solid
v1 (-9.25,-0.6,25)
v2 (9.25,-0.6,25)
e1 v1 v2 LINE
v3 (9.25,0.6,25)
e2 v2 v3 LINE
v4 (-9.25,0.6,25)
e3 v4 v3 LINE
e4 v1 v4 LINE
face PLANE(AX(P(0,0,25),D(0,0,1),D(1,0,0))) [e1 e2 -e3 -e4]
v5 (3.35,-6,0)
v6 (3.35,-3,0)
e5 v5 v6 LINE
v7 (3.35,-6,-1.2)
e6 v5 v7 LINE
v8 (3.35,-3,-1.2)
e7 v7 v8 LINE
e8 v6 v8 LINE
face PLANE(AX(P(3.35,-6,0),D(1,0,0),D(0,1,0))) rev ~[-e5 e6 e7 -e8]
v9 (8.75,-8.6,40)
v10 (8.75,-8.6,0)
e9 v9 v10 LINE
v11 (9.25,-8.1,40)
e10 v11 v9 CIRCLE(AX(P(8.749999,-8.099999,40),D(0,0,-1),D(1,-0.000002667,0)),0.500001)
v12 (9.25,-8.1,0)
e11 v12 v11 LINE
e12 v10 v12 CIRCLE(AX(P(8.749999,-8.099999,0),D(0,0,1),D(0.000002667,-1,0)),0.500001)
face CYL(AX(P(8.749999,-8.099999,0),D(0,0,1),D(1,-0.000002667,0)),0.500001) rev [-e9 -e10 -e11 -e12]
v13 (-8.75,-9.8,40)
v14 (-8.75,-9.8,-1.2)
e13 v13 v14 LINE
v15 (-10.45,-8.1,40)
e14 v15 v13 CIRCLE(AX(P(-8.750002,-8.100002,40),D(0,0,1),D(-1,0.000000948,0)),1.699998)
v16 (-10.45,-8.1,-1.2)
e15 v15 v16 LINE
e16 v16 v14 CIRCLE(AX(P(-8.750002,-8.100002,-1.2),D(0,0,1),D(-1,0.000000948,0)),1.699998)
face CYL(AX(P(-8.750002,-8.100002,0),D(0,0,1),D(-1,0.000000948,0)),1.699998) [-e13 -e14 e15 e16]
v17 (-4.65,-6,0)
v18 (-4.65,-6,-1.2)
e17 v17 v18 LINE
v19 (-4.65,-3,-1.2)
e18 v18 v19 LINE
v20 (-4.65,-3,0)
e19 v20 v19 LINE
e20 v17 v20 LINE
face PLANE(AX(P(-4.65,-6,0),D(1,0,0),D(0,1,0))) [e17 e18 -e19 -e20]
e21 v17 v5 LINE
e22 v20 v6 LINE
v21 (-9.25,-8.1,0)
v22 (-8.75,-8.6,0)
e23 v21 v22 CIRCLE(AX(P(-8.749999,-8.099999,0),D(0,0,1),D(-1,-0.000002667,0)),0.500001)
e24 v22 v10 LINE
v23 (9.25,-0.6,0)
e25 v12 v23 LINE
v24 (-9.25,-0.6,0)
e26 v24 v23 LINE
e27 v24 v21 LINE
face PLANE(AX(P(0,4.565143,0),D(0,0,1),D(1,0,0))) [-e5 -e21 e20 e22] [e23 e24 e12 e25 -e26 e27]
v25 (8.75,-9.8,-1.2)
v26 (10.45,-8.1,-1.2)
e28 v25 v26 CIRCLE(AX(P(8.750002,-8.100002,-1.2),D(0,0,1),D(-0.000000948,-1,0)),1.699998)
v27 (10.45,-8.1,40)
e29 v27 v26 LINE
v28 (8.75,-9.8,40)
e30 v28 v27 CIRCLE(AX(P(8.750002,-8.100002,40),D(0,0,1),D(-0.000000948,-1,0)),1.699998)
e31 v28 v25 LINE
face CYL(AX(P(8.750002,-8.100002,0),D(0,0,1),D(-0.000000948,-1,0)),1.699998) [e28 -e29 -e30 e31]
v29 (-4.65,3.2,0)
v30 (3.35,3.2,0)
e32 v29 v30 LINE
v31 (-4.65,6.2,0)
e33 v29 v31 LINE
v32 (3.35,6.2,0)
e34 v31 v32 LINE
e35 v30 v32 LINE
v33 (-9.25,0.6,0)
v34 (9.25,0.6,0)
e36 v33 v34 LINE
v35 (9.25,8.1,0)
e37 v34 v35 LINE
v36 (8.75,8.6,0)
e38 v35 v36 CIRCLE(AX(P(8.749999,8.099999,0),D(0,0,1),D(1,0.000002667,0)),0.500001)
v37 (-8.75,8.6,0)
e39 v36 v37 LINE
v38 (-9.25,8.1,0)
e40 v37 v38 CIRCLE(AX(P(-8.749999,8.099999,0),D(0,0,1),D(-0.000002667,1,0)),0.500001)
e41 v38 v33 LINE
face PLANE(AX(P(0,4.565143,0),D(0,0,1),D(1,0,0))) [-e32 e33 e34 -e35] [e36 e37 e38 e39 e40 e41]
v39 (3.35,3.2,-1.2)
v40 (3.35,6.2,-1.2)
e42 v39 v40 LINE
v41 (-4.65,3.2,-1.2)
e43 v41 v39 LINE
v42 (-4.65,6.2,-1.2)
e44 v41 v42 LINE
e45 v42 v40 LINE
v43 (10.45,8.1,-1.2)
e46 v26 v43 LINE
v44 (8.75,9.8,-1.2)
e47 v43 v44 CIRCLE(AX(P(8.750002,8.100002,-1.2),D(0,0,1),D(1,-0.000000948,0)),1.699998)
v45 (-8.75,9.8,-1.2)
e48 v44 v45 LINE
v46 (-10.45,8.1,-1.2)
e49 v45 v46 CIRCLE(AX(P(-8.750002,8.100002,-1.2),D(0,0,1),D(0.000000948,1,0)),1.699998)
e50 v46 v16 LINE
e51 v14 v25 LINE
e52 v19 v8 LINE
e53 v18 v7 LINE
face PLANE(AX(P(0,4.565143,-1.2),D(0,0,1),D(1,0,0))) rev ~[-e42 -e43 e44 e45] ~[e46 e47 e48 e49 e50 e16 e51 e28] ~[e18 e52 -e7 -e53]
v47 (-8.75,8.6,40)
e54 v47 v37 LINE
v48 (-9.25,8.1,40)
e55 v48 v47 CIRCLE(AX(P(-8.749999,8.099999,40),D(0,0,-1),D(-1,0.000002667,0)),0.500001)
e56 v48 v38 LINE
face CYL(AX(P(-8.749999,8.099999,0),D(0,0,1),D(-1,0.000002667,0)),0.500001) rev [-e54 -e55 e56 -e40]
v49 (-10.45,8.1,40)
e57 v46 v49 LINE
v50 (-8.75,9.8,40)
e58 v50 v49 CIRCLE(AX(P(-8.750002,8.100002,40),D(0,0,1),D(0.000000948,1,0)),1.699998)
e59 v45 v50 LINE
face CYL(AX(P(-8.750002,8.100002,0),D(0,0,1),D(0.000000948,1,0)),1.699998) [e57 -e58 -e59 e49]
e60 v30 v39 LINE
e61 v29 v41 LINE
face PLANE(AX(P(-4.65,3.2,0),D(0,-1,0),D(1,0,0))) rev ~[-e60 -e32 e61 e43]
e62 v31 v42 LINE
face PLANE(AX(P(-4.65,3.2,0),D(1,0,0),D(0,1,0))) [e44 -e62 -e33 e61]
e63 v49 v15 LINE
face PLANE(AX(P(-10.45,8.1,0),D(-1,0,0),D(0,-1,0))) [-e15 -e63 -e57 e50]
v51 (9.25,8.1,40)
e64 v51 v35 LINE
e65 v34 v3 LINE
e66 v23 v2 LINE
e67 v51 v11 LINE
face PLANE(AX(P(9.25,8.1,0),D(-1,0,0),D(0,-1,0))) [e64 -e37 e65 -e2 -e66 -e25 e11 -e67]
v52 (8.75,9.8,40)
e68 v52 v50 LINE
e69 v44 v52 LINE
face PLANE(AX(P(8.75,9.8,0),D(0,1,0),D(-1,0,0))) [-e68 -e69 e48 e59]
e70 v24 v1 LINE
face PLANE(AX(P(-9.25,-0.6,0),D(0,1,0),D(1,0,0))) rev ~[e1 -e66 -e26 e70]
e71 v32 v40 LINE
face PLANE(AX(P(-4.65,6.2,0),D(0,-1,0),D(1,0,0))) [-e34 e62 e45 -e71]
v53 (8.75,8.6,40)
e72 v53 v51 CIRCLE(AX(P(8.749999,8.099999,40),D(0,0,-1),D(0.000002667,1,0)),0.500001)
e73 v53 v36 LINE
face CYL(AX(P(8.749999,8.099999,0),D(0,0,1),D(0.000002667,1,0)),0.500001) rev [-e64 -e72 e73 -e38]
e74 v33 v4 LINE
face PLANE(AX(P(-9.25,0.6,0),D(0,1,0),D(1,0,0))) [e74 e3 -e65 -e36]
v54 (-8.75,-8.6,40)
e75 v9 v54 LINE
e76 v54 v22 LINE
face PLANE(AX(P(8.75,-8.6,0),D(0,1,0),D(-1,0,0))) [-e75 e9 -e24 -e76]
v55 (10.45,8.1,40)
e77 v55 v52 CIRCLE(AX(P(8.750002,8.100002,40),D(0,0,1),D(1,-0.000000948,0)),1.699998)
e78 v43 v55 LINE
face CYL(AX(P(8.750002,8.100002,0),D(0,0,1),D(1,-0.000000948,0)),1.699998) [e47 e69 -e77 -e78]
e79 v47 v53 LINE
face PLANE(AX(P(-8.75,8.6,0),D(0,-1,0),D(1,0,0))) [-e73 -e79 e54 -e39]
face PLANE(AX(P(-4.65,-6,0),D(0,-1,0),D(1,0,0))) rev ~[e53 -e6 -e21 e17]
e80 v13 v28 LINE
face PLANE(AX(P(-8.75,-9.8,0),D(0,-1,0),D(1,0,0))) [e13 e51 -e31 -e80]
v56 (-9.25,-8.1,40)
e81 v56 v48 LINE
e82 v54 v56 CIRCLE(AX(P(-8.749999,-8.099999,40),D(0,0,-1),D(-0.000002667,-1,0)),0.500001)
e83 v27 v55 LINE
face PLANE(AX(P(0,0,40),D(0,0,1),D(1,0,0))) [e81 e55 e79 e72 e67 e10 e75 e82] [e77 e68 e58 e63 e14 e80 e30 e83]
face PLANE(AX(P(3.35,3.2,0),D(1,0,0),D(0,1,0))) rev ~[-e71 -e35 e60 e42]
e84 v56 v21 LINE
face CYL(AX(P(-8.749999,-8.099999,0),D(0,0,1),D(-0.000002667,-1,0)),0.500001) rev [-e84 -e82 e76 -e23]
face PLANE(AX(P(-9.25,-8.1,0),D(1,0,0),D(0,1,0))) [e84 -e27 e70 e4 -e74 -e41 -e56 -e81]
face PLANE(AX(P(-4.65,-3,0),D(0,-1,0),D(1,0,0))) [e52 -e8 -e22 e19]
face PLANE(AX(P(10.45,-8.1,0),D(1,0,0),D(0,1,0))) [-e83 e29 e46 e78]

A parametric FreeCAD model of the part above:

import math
import FreeCAD as App
import Part
import Sketcher
from FreeCAD import Vector
Q = App.Units.Quantity

doc = App.newDocument("Part")
body = doc.addObject("PartDesign::Body", "Body")

# Sketch on XY plane
sketch1 = body.newObject("Sketcher::SketchObject", "Sketch")
sketch1.AttachmentSupport = (doc.getObject("XY_Plane"), [""])
sketch1.MapMode = "FlatFace"
sketch1.addGeometry(Part.LineSegment(Vector(10.4, -8.1, 0), Vector(10.4, 8.1, 0)), False)
sketch1.addGeometry(Part.ArcOfCircle(Part.Circle(Vector(8.8, 8.1, 0), Vector(0, 0, 1), 1.7), math.radians(0), math.radians(90)), False)
sketch1.addGeometry(Part.LineSegment(Vector(8.8, 9.8, 0), Vector(-8.8, 9.8, 0)), False)
sketch1.addGeometry(Part.ArcOfCircle(Part.Circle(Vector(-8.8, 8.1, 0), Vector(0, 0, 1), 1.7), math.radians(90), math.radians(180)), False)
sketch1.addGeometry(Part.LineSegment(Vector(-10.4, 8.1, 0), Vector(-10.4, -8.1, 0)), False)
sketch1.addGeometry(Part.ArcOfCircle(Part.Circle(Vector(-8.8, -8.1, 0), Vector(0, 0, 1), 1.7), math.radians(180), math.radians(270)), False)
sketch1.addGeometry(Part.LineSegment(Vector(-8.8, -9.8, 0), Vector(8.8, -9.8, 0)), False)
sketch1.addGeometry(Part.ArcOfCircle(Part.Circle(Vector(8.8, -8.1, 0), Vector(0, 0, 1), 1.7), math.radians(-90), math.radians(0)), False)
sketch1.addGeometry(Part.LineSegment(Vector(9.2, 8.1, 0), Vector(9.2, -8.1, 0)), False)
sketch1.addGeometry(Part.ArcOfCircle(Part.Circle(Vector(8.7, -8.1, 0), Vector(0, 0, 1), 0.5), math.radians(-90), math.radians(0)), False)
sketch1.addGeometry(Part.LineSegment(Vector(8.8, -8.6, 0), Vector(-8.8, -8.6, 0)), False)
sketch1.addGeometry(Part.ArcOfCircle(Part.Circle(Vector(-8.7, -8.1, 0), Vector(0, 0, 1), 0.5), math.radians(-180), math.radians(-90)), False)
sketch1.addGeometry(Part.LineSegment(Vector(-9.2, -8.1, 0), Vector(-9.2, 8.1, 0)), False)
sketch1.addGeometry(Part.ArcOfCircle(Part.Circle(Vector(-8.7, 8.1, 0), Vector(0, 0, 1), 0.5), math.radians(90), math.radians(180)), False)
sketch1.addGeometry(Part.LineSegment(Vector(-8.8, 8.6, 0), Vector(8.8, 8.6, 0)), False)
sketch1.addGeometry(Part.ArcOfCircle(Part.Circle(Vector(8.7, 8.1, 0), Vector(0, 0, 1), 0.5), math.radians(0), math.radians(90)), False)
sketch1.addConstraint(Sketcher.Constraint("Tangent", 0, 2, 1, 1))
sketch1.addConstraint(Sketcher.Constraint("Tangent", 1, 2, 2, 1))
sketch1.addConstraint(Sketcher.Constraint("Tangent", 2, 2, 3, 1))
sketch1.addConstraint(Sketcher.Constraint("Tangent", 3, 2, 4, 1))
sketch1.addConstraint(Sketcher.Constraint("Tangent", 4, 2, 5, 1))
sketch1.addConstraint(Sketcher.Constraint("Tangent", 5, 2, 6, 1))
sketch1.addConstraint(Sketcher.Constraint("Tangent", 6, 2, 7, 1))
sketch1.addConstraint(Sketcher.Constraint("Tangent", 7, 2, 0, 1))
sketch1.addConstraint(Sketcher.Constraint("Coincident", 8, 2, 9, 2))
sketch1.addConstraint(Sketcher.Constraint("Coincident", 9, 1, 10, 1))
sketch1.addConstraint(Sketcher.Constraint("Coincident", 10, 2, 11, 2))
sketch1.addConstraint(Sketcher.Constraint("Coincident", 11, 1, 12, 1))
sketch1.addConstraint(Sketcher.Constraint("Coincident", 12, 2, 13, 2))
sketch1.addConstraint(Sketcher.Constraint("Coincident", 13, 1, 14, 1))
sketch1.addConstraint(Sketcher.Constraint("Coincident", 14, 2, 15, 2))
sketch1.addConstraint(Sketcher.Constraint("Coincident", 15, 1, 8, 1))
sketch1.addConstraint(Sketcher.Constraint("Vertical", 0))
sketch1.addConstraint(Sketcher.Constraint("Horizontal", 2))
sketch1.addConstraint(Sketcher.Constraint("Vertical", 4))
sketch1.addConstraint(Sketcher.Constraint("Horizontal", 6))
sketch1.addConstraint(Sketcher.Constraint("Vertical", 8))
sketch1.addConstraint(Sketcher.Constraint("Horizontal", 10))
sketch1.addConstraint(Sketcher.Constraint("Vertical", 12))
sketch1.addConstraint(Sketcher.Constraint("Horizontal", 14))
sketch1.addConstraint(Sketcher.Constraint("Coincident", 9, 3, 7, 3))
sketch1.addConstraint(Sketcher.Constraint("Coincident", 11, 3, 5, 3))
sketch1.addConstraint(Sketcher.Constraint("Coincident", 13, 3, 3, 3))
sketch1.addConstraint(Sketcher.Constraint("Equal", 1, 3))
sketch1.addConstraint(Sketcher.Constraint("Equal", 3, 5))
sketch1.addConstraint(Sketcher.Constraint("Equal", 5, 7))
sketch1.addConstraint(Sketcher.Constraint("Equal", 13, 15))
sketch1.addConstraint(Sketcher.Constraint("Symmetric", 1, 3, 5, 3, -1, 1))
sketch1.addConstraint(Sketcher.Constraint("Horizontal", 7, 2, 8, 2))
sketch1.addConstraint(Sketcher.Constraint("Horizontal", 8, 2, 11, 1))
sketch1.addConstraint(Sketcher.Constraint("Horizontal", 3, 2, 12, 2))
sketch1.addConstraint(Sketcher.Constraint("Horizontal", 12, 2, 15, 1))
sketch1.addConstraint(Sketcher.Constraint("Vertical", 6, 2, 9, 1))
sketch1.addConstraint(Sketcher.Constraint("Vertical", 5, 2, 10, 2))
sketch1.addConstraint(Sketcher.Constraint("Vertical", 10, 2, 13, 1))
sketch1.addConstraint(Sketcher.Constraint("Vertical", 9, 1, 14, 2))
sketch1.addConstraint(Sketcher.Constraint("Radius", 1, Q("1.699998 mm")))
sketch1.addConstraint(Sketcher.Constraint("Radius", 9, Q("0.500001 mm")))
sketch1.addConstraint(Sketcher.Constraint("DistanceX", 2, 2, 2, 1, Q("17.5 mm")))
sketch1.addConstraint(Sketcher.Constraint("DistanceY", 0, 1, 0, 2, Q("16.2 mm")))
pad1 = body.newObject("PartDesign::Pad", "Pad")
pad1.Profile = sketch1
pad1.Type = "TwoLengths"
pad1.Length = 40
pad1.Length2 = 1.2

# Sketch on XY plane
sketch2 = body.newObject("Sketcher::SketchObject", "Sketch001")
sketch2.AttachmentSupport = (doc.getObject("XY_Plane"), [""])
sketch2.MapMode = "FlatFace"
sketch2.addGeometry(Part.LineSegment(Vector(-9.2, 8.1, 0), Vector(-9.2, -8.1, 0)), False)
sketch2.addGeometry(Part.ArcOfCircle(Part.Circle(Vector(-8.7, -8.1, 0), Vector(0, 0, 1), 0.5), math.radians(-180), math.radians(-90)), False)
sketch2.addGeometry(Part.LineSegment(Vector(-8.8, -8.6, 0), Vector(8.8, -8.6, 0)), False)
sketch2.addGeometry(Part.ArcOfCircle(Part.Circle(Vector(8.7, -8.1, 0), Vector(0, 0, 1), 0.5), math.radians(-90), math.radians(0)), False)
sketch2.addGeometry(Part.LineSegment(Vector(9.2, -8.1, 0), Vector(9.2, 8.1, 0)), False)
sketch2.addGeometry(Part.ArcOfCircle(Part.Circle(Vector(8.7, 8.1, 0), Vector(0, 0, 1), 0.5), math.radians(0), math.radians(90)), False)
sketch2.addGeometry(Part.LineSegment(Vector(8.8, 8.6, 0), Vector(-8.8, 8.6, 0)), False)
sketch2.addGeometry(Part.ArcOfCircle(Part.Circle(Vector(-8.7, 8.1, 0), Vector(0, 0, 1), 0.5), math.radians(90), math.radians(180)), False)
sketch2.addGeometry(Part.LineSegment(Vector(3.4, -6, 0), Vector(-4.7, -6, 0)), False)
sketch2.addGeometry(Part.LineSegment(Vector(-4.7, -6, 0), Vector(-4.7, -3, 0)), False)
sketch2.addGeometry(Part.LineSegment(Vector(-4.7, -3, 0), Vector(3.4, -3, 0)), False)
sketch2.addGeometry(Part.LineSegment(Vector(3.4, -3, 0), Vector(3.4, -6, 0)), False)
sketch2.addGeometry(Part.LineSegment(Vector(3.4, 3.2, 0), Vector(-4.7, 3.2, 0)), False)
sketch2.addGeometry(Part.LineSegment(Vector(-4.7, 3.2, 0), Vector(-4.7, 6.2, 0)), False)
sketch2.addGeometry(Part.LineSegment(Vector(-4.7, 6.2, 0), Vector(3.4, 6.2, 0)), False)
sketch2.addGeometry(Part.LineSegment(Vector(3.4, 6.2, 0), Vector(3.4, 3.2, 0)), False)
sketch2.addConstraint(Sketcher.Constraint("Coincident", 0, 2, 1, 1))
sketch2.addConstraint(Sketcher.Constraint("Coincident", 1, 2, 2, 1))
sketch2.addConstraint(Sketcher.Constraint("Coincident", 2, 2, 3, 1))
sketch2.addConstraint(Sketcher.Constraint("Coincident", 3, 2, 4, 1))
sketch2.addConstraint(Sketcher.Constraint("Coincident", 4, 2, 5, 1))
sketch2.addConstraint(Sketcher.Constraint("Coincident", 5, 2, 6, 1))
sketch2.addConstraint(Sketcher.Constraint("Coincident", 6, 2, 7, 1))
sketch2.addConstraint(Sketcher.Constraint("Coincident", 7, 2, 0, 1))
sketch2.addConstraint(Sketcher.Constraint("Coincident", 8, 2, 9, 1))
sketch2.addConstraint(Sketcher.Constraint("Coincident", 9, 2, 10, 1))
sketch2.addConstraint(Sketcher.Constraint("Coincident", 10, 2, 11, 1))
sketch2.addConstraint(Sketcher.Constraint("Coincident", 11, 2, 8, 1))
sketch2.addConstraint(Sketcher.Constraint("Coincident", 12, 2, 13, 1))
sketch2.addConstraint(Sketcher.Constraint("Coincident", 13, 2, 14, 1))
sketch2.addConstraint(Sketcher.Constraint("Coincident", 14, 2, 15, 1))
sketch2.addConstraint(Sketcher.Constraint("Coincident", 15, 2, 12, 1))
sketch2.addConstraint(Sketcher.Constraint("Vertical", 0))
sketch2.addConstraint(Sketcher.Constraint("Horizontal", 2))
sketch2.addConstraint(Sketcher.Constraint("Vertical", 4))
sketch2.addConstraint(Sketcher.Constraint("Horizontal", 6))
sketch2.addConstraint(Sketcher.Constraint("Horizontal", 8))
sketch2.addConstraint(Sketcher.Constraint("Vertical", 9))
sketch2.addConstraint(Sketcher.Constraint("Horizontal", 10))
sketch2.addConstraint(Sketcher.Constraint("Vertical", 11))
sketch2.addConstraint(Sketcher.Constraint("Horizontal", 12))
sketch2.addConstraint(Sketcher.Constraint("Vertical", 13))
sketch2.addConstraint(Sketcher.Constraint("Horizontal", 14))
sketch2.addConstraint(Sketcher.Constraint("Vertical", 15))
sketch2.addConstraint(Sketcher.Constraint("Equal", 1, 3))
sketch2.addConstraint(Sketcher.Constraint("Equal", 3, 5))
sketch2.addConstraint(Sketcher.Constraint("Equal", 5, 7))
sketch2.addConstraint(Sketcher.Constraint("Symmetric", 1, 3, 5, 3, -1, 1))
sketch2.addConstraint(Sketcher.Constraint("Horizontal", 3, 3, 0, 2))
sketch2.addConstraint(Sketcher.Constraint("Horizontal", 0, 2, 3, 2))
sketch2.addConstraint(Sketcher.Constraint("Horizontal", 7, 3, 4, 2))
sketch2.addConstraint(Sketcher.Constraint("Horizontal", 4, 2, 7, 2))
sketch2.addConstraint(Sketcher.Constraint("Vertical", 7, 3, 1, 2))
sketch2.addConstraint(Sketcher.Constraint("Vertical", 5, 3, 2, 2))
sketch2.addConstraint(Sketcher.Constraint("Vertical", 2, 2, 5, 2))
sketch2.addConstraint(Sketcher.Constraint("Vertical", 1, 2, 6, 2))
sketch2.addConstraint(Sketcher.Constraint("Vertical", 9, 2, 12, 2))
sketch2.addConstraint(Sketcher.Constraint("Vertical", 11, 2, 14, 2))
sketch2.addConstraint(Sketcher.Constraint("Equal", 11, 13))
sketch2.addConstraint(Sketcher.Constraint("Radius", 1, Q("0.500001 mm")))
sketch2.addConstraint(Sketcher.Constraint("DistanceX", 8, 2, 8, 1, Q("8 mm")))
sketch2.addConstraint(Sketcher.Constraint("DistanceY", 9, 1, 9, 2, Q("3 mm")))
sketch2.addConstraint(Sketcher.Constraint("DistanceX", 2, 1, 2, 2, Q("17.5 mm")))
sketch2.addConstraint(Sketcher.Constraint("DistanceY", 0, 2, 0, 1, Q("16.2 mm")))
sketch2.addConstraint(Sketcher.Constraint("DistanceY", 8, 2, -1, 1, Q("6 mm")))
sketch2.addConstraint(Sketcher.Constraint("DistanceY", -1, 1, 12, 2, Q("3.2 mm")))
sketch2.addConstraint(Sketcher.Constraint("DistanceX", 1, 3, 8, 2, Q("4.099999 mm")))
pad2 = body.newObject("PartDesign::Pad", "Pad001")
pad2.Profile = sketch2
pad2.Length = 1.2
pad2.Reversed = True

# Sketch on XY plane
sketch3 = body.newObject("Sketcher::SketchObject", "Sketch002")
sketch3.AttachmentSupport = (doc.getObject("XY_Plane"), [""])
sketch3.MapMode = "FlatFace"
sketch3.addGeometry(Part.LineSegment(Vector(-9.2, 0.6, 0), Vector(-9.2, -0.6, 0)), False)
sketch3.addGeometry(Part.LineSegment(Vector(-9.2, -0.6, 0), Vector(9.2, -0.6, 0)), False)
sketch3.addGeometry(Part.LineSegment(Vector(9.2, -0.6, 0), Vector(9.2, 0.6, 0)), False)
sketch3.addGeometry(Part.LineSegment(Vector(9.2, 0.6, 0), Vector(-9.2, 0.6, 0)), False)
sketch3.addConstraint(Sketcher.Constraint("Coincident", 0, 2, 1, 1))
sketch3.addConstraint(Sketcher.Constraint("Coincident", 1, 2, 2, 1))
sketch3.addConstraint(Sketcher.Constraint("Coincident", 2, 2, 3, 1))
sketch3.addConstraint(Sketcher.Constraint("Coincident", 3, 2, 0, 1))
sketch3.addConstraint(Sketcher.Constraint("Vertical", 0))
sketch3.addConstraint(Sketcher.Constraint("Horizontal", 1))
sketch3.addConstraint(Sketcher.Constraint("Vertical", 2))
sketch3.addConstraint(Sketcher.Constraint("Horizontal", 3))
sketch3.addConstraint(Sketcher.Constraint("Symmetric", 0, 2, 2, 2, -1, 1))
sketch3.addConstraint(Sketcher.Constraint("DistanceX", 1, 1, 1, 2, Q("18.5 mm")))
sketch3.addConstraint(Sketcher.Constraint("DistanceY", 0, 2, 0, 1, Q("1.2 mm")))
pad3 = body.newObject("PartDesign::Pad", "Pad002")
pad3.Profile = sketch3
pad3.Length = 25

doc.recompute()
